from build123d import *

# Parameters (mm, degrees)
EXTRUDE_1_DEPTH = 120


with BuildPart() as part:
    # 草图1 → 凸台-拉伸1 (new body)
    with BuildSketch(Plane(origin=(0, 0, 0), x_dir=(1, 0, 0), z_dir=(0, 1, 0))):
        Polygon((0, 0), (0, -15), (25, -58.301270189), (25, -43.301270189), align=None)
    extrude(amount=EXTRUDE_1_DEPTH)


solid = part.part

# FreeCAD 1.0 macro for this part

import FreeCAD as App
import Part
import Sketcher
from FreeCAD import Vector
Q = App.Units.Quantity

doc = App.newDocument("Part")
body = doc.addObject("PartDesign::Body", "Body")

# Sketch on XZ plane
sketch1 = body.newObject("Sketcher::SketchObject", "Sketch")
sketch1.AttachmentSupport = (doc.getObject("XZ_Plane"), [""])
sketch1.MapMode = "FlatFace"
sketch1.addGeometry([
    Part.LineSegment(Vector(0, 0, 0), Vector(0, 15, 0)),
    Part.LineSegment(Vector(0, 15, 0), Vector(25, 58, 0)),
    Part.LineSegment(Vector(25, 58, 0), Vector(25, 43, 0)),
    Part.LineSegment(Vector(25, 43, 0), Vector(0, 0, 0)),
], False)
sketch1.addConstraint([
    Sketcher.Constraint("Coincident", 0, 2, 1, 1),
    Sketcher.Constraint("Coincident", 1, 2, 2, 1),
    Sketcher.Constraint("Coincident", 2, 2, 3, 1),
    Sketcher.Constraint("Coincident", 3, 2, 0, 1),
    Sketcher.Constraint("Vertical", 0),
    Sketcher.Constraint("Vertical", 2),
    Sketcher.Constraint("Coincident", 3, 2, -1, 1),
    Sketcher.Constraint("Parallel", 1, 3),
    Sketcher.Constraint("DistanceY", 0, 1, 0, 2, Q("15 mm")),
    Sketcher.Constraint("Angle", 1, Q("60 deg")),
    Sketcher.Constraint("Distance", 1, Q("50 mm")),
])
pad1 = body.newObject("PartDesign::Pad", "Pad")
pad1.Profile = sketch1
pad1.Length = 120
pad1.Reversed = True

doc.recompute()
